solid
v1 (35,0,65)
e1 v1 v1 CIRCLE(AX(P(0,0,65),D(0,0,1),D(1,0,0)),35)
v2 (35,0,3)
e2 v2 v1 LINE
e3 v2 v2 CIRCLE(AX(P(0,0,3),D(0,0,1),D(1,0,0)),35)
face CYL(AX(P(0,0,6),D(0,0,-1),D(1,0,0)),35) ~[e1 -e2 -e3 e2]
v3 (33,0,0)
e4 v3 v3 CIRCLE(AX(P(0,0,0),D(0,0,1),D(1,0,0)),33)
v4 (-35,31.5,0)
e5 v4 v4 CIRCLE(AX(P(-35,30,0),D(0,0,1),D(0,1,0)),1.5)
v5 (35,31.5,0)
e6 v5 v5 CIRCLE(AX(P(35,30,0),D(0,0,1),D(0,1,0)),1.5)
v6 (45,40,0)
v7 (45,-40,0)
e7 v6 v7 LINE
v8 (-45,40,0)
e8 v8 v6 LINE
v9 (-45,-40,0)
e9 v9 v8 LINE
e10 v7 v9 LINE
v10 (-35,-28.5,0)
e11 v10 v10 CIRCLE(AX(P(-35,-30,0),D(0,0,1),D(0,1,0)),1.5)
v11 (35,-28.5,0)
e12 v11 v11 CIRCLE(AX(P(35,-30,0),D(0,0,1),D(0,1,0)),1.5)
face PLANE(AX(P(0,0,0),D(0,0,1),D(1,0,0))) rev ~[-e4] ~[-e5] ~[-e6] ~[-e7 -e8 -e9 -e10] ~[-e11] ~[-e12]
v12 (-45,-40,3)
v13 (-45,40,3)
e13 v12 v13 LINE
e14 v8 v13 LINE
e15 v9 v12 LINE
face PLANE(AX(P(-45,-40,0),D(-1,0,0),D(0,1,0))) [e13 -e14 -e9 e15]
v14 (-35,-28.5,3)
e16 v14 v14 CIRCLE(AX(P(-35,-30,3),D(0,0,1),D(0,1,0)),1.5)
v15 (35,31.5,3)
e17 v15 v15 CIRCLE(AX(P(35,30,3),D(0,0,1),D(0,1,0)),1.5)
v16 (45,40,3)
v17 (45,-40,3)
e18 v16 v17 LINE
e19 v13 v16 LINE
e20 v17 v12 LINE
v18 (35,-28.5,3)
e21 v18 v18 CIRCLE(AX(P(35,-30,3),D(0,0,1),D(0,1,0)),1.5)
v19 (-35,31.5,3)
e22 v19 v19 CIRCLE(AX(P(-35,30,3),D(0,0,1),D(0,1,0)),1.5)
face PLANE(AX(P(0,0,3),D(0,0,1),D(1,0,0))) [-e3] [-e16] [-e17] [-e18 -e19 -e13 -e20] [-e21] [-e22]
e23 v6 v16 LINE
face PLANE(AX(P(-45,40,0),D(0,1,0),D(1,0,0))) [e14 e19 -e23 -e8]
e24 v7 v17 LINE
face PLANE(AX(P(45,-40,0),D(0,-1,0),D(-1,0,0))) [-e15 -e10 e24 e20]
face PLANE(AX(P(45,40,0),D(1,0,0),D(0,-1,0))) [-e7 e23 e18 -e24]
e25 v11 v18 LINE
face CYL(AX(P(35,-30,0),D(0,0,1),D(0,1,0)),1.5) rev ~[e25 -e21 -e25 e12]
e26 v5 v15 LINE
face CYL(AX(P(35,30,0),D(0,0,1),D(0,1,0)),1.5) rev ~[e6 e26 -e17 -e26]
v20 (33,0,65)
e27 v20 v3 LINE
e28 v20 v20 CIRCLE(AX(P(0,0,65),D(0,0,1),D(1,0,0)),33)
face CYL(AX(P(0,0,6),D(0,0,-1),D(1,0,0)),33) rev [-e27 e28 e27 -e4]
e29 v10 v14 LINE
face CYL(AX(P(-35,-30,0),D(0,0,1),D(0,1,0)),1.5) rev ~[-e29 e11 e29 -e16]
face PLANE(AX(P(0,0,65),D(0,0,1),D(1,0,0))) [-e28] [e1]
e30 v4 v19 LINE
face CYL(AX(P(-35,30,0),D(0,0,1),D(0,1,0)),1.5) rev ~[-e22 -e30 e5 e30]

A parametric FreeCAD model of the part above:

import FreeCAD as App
import Part
import Sketcher
Q = App.Units.Quantity


def add_polygon(sketch, points):
    """Adds a closed chain of lines whose ends are joined by coincident constraints."""
    first, n = sketch.GeometryCount, len(points)
    for a, b in zip(points, points[1:] + points[:1]):
        sketch.addGeometry(Part.LineSegment(App.Vector(*a, 0), App.Vector(*b, 0)), False)
    for i in range(n):
        sketch.addConstraint(Sketcher.Constraint("Coincident", first + i, 2, first + (i + 1) % n, 1))

doc = App.newDocument("Part")
body = doc.addObject("PartDesign::Body", "Body")

# Sketch on XY plane
sketch1 = body.newObject("Sketcher::SketchObject", "Sketch")
sketch1.AttachmentSupport = (doc.getObject("XY_Plane"), [""])
sketch1.MapMode = "FlatFace"
add_polygon(sketch1, [(45, 40), (-45, 40), (-45, -40), (45, -40)])  # lines 0-3
sketch1.addGeometry(Part.Circle(App.Vector(0, 0, 0), App.Vector(0, 0, 1), 35), False)  # 4
sketch1.addConstraint([
    Sketcher.Constraint("Horizontal", 0),
    Sketcher.Constraint("Vertical", 1),
    Sketcher.Constraint("Horizontal", 2),
    Sketcher.Constraint("Vertical", 3),
    Sketcher.Constraint("Coincident", 4, 3, -1, 1),
    Sketcher.Constraint("Symmetric", 0, 2, 2, 2, -1, 1),
    Sketcher.Constraint("Diameter", 4, Q("70 mm")),
    Sketcher.Constraint("DistanceX", 0, 2, 0, 1, Q("90 mm")),
    Sketcher.Constraint("DistanceY", 1, 2, 1, 1, Q("80 mm")),
])
pad1 = body.newObject("PartDesign::Pad", "Pad")
pad1.Profile = sketch1
pad1.Length = 3

# Sketch on XY plane
sketch2 = body.newObject("Sketcher::SketchObject", "Sketch001")
sketch2.AttachmentSupport = (doc.getObject("XY_Plane"), [""])
sketch2.MapMode = "FlatFace"
sketch2.AttachmentOffset = App.Placement(App.Vector(0, 0, 3), App.Rotation())
sketch2.addGeometry([
    Part.Circle(App.Vector(0, 0, 0), App.Vector(0, 0, 1), 35),
    Part.Circle(App.Vector(0, 0, 0), App.Vector(0, 0, 1), 33),
], False)
sketch2.addConstraint([
    Sketcher.Constraint("Coincident", 0, 3, -1, 1),
    Sketcher.Constraint("Coincident", 1, 3, -1, 1),
    Sketcher.Constraint("Diameter", 1, Q("66 mm")),
    Sketcher.Constraint("Diameter", 0, Q("70 mm")),
])
pad2 = body.newObject("PartDesign::Pad", "Pad001")
pad2.Profile = sketch2
pad2.Type = "TwoLengths"
pad2.Length = 3
pad2.Length2 = 3

# Sketch on XY plane
sketch3 = body.newObject("Sketcher::SketchObject", "Sketch002")
sketch3.AttachmentSupport = (doc.getObject("XY_Plane"), [""])
sketch3.MapMode = "FlatFace"
sketch3.AttachmentOffset = App.Placement(App.Vector(0, 0, 6), App.Rotation())
sketch3.addGeometry([
    Part.Circle(App.Vector(0, 0, 0), App.Vector(0, 0, 1), 35),
    Part.Circle(App.Vector(0, 0, 0), App.Vector(0, 0, 1), 33),
], False)
sketch3.addConstraint([
    Sketcher.Constraint("Coincident", 0, 3, -1, 1),
    Sketcher.Constraint("Coincident", 1, 3, -1, 1),
    Sketcher.Constraint("Diameter", 0, Q("70 mm")),
    Sketcher.Constraint("Diameter", 1, Q("66 mm")),
])
pad3 = body.newObject("PartDesign::Pad", "Pad002")
pad3.Profile = sketch3
pad3.Length = 59

# Sketch on XY plane
sketch4 = body.newObject("Sketcher::SketchObject", "Sketch003")
sketch4.AttachmentSupport = (doc.getObject("XY_Plane"), [""])
sketch4.MapMode = "FlatFace"
sketch4.addGeometry([
    Part.Circle(App.Vector(35, 30, 0), App.Vector(0, 0, 1), 1.5),
    Part.Circle(App.Vector(-35, 30, 0), App.Vector(0, 0, 1), 1.5),
    Part.Circle(App.Vector(-35, -30, 0), App.Vector(0, 0, 1), 1.5),
    Part.Circle(App.Vector(35, -30, 0), App.Vector(0, 0, 1), 1.5),
], False)
sketch4.addConstraint([
    Sketcher.Constraint("Equal", 0, 1),
    Sketcher.Constraint("Equal", 1, 2),
    Sketcher.Constraint("Equal", 2, 3),
    Sketcher.Constraint("Symmetric", 0, 3, 2, 3, -1, 1),
    Sketcher.Constraint("Symmetric", 1, 3, 3, 3, -1, 1),
    Sketcher.Constraint("Symmetric", 0, 3, 1, 3, -2),
    Sketcher.Constraint("Diameter", 0, Q("3 mm")),
    Sketcher.Constraint("DistanceX", -1, 1, 0, 3, Q("35 mm")),
    Sketcher.Constraint("DistanceY", -1, 1, 0, 3, Q("30 mm")),
])
doc.recompute()
hole = body.newObject("PartDesign::Hole", "Hole")
hole.Profile = sketch4
hole.ThreadType = "None"
hole.Diameter = 3
hole.DepthType = "Dimension"
hole.Depth = 8
hole.DrillPoint = "Angled"
hole.DrillPointAngle = 118
hole.Reversed = True

doc.recompute()
